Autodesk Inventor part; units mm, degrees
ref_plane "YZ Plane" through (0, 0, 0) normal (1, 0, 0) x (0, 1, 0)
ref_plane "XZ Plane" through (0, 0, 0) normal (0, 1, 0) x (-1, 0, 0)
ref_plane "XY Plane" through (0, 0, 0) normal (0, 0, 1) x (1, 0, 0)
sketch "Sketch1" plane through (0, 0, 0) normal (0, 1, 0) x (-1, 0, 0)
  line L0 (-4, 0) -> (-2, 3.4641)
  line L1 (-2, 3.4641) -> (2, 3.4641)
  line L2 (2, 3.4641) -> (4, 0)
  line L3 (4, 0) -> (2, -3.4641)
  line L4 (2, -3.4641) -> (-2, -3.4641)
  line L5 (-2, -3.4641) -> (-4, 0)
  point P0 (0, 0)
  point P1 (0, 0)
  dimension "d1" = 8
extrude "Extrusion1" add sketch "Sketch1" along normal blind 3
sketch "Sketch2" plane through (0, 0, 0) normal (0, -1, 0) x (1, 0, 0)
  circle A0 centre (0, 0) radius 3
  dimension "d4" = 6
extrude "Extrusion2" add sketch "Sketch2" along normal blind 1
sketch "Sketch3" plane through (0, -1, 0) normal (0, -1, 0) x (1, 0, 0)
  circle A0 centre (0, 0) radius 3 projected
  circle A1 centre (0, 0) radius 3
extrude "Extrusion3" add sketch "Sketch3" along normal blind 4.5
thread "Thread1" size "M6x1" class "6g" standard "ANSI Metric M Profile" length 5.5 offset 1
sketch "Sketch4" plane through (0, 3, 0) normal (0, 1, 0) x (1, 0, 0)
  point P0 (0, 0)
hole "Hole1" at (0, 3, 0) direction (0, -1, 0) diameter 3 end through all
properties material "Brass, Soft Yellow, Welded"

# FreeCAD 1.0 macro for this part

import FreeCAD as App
import Part
import Sketcher
Q = App.Units.Quantity


def add_polygon(sketch, points):
    """Adds a closed chain of lines whose ends are joined by coincident constraints."""
    first, n = sketch.GeometryCount, len(points)
    for a, b in zip(points, points[1:] + points[:1]):
        sketch.addGeometry(Part.LineSegment(App.Vector(*a, 0), App.Vector(*b, 0)), False)
    for i in range(n):
        sketch.addConstraint(Sketcher.Constraint("Coincident", first + i, 2, first + (i + 1) % n, 1))

doc = App.newDocument("Part")
body = doc.addObject("PartDesign::Body", "Body")

sketch1 = body.newObject("Sketcher::SketchObject", "Sketch")
sketch1.AttachmentSupport = (doc.getObject("XZ_Plane"), [""])
sketch1.MapMode = "FlatFace"
add_polygon(sketch1, [(2, 3.5), (4, 0), (2, -3.5), (-2, -3.5), (-4, 0), (-2, 3.5)])
sketch1.addConstraint([
    Sketcher.Constraint("Horizontal", 2),
    Sketcher.Constraint("Horizontal", 5),
    Sketcher.Constraint("Symmetric", 0, 2, 3, 2, -1, 1),
    Sketcher.Constraint("Symmetric", 1, 2, 4, 2, -1, 1),
    Sketcher.Constraint("PointOnObject", 0, 2, -1),
    Sketcher.Constraint("Parallel", 0, 3),
    Sketcher.Constraint("Vertical", 2, 2, 4, 2),
    Sketcher.Constraint("DistanceX", 3, 2, 0, 2, Q("8 mm")),
    Sketcher.Constraint("DistanceX", 2, 2, 2, 1, Q("4 mm")),
    Sketcher.Constraint("Angle", 0, Q("-60 deg")),
])
pad1 = body.newObject("PartDesign::Pad", "Pad")
pad1.Profile = sketch1
pad1.Length = 3
pad1.Reversed = True

sketch2 = body.newObject("Sketcher::SketchObject", "Sketch001")
sketch2.AttachmentSupport = (doc.getObject("XZ_Plane"), [""])
sketch2.MapMode = "FlatFace"
sketch2.addGeometry(Part.Circle(App.Vector(0, 0, 0), App.Vector(0, 0, 1), 3), False)
sketch2.addConstraint([
    Sketcher.Constraint("Coincident", 0, 3, -1, 1),
    Sketcher.Constraint("Diameter", 0, Q("6 mm")),
])
pad2 = body.newObject("PartDesign::Pad", "Pad001")
pad2.Profile = sketch2
pad2.Length = 1

sketch3 = body.newObject("Sketcher::SketchObject", "Sketch002")
sketch3.AttachmentSupport = (doc.getObject("XZ_Plane"), [""])
sketch3.MapMode = "FlatFace"
sketch3.AttachmentOffset = App.Placement(App.Vector(0, 0, 1), App.Rotation())
sketch3.addGeometry(Part.Circle(App.Vector(0, 0, 0), App.Vector(0, 0, 1), 3), False)
sketch3.addConstraint([
    Sketcher.Constraint("Coincident", 0, 3, -1, 1),
    Sketcher.Constraint("Diameter", 0, Q("6 mm")),
])
pad3 = body.newObject("PartDesign::Pad", "Pad002")
pad3.Profile = sketch3
pad3.Length = 4.5

sketch4 = body.newObject("Sketcher::SketchObject", "Sketch003")
sketch4.AttachmentSupport = (doc.getObject("XZ_Plane"), [""])
sketch4.MapMode = "FlatFace"
sketch4.AttachmentOffset = App.Placement(App.Vector(0, 0, -3), App.Rotation())
sketch4.addGeometry(Part.Circle(App.Vector(0, 0, 0), App.Vector(0, 0, 1), 1.5), False)
sketch4.addConstraint([
    Sketcher.Constraint("Coincident", 0, 3, -1, 1),
    Sketcher.Constraint("Diameter", 0, Q("3 mm")),
])
doc.recompute()
hole = body.newObject("PartDesign::Hole", "Hole")
hole.Profile = sketch4
hole.ThreadType = "None"
hole.Diameter = 3
hole.DepthType = "ThroughAll"
hole.Reversed = True

doc.recompute()
